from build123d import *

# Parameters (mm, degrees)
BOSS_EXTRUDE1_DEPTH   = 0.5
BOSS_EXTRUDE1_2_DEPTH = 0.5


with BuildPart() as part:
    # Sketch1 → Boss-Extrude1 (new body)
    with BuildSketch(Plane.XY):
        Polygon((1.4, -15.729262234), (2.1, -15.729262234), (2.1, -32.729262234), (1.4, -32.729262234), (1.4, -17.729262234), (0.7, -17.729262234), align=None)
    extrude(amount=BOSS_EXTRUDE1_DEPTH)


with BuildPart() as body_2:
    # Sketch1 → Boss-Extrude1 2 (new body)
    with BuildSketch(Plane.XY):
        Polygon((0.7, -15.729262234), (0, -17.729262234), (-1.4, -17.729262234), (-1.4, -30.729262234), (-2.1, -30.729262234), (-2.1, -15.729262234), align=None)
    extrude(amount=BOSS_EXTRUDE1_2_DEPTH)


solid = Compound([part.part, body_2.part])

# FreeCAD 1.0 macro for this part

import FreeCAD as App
import Part
import Sketcher
from FreeCAD import Vector
Q = App.Units.Quantity

doc = App.newDocument("Part")
body = doc.addObject("PartDesign::Body", "Body")

sketch1 = body.newObject("Sketcher::SketchObject", "Sketch")
sketch1.AttachmentSupport = (doc.getObject("XY_Plane"), [""])
sketch1.MapMode = "FlatFace"
sketch1.addGeometry(Part.LineSegment(Vector(2.1, -15.7, 0), Vector(1.4, -15.7, 0)), False)
sketch1.addGeometry(Part.LineSegment(Vector(1.4, -15.7, 0), Vector(0.7, -17.7, 0)), False)
sketch1.addGeometry(Part.LineSegment(Vector(0.7, -17.7, 0), Vector(1.4, -17.7, 0)), False)
sketch1.addGeometry(Part.LineSegment(Vector(1.4, -17.7, 0), Vector(1.4, -32.7, 0)), False)
sketch1.addGeometry(Part.LineSegment(Vector(1.4, -32.7, 0), Vector(2.1, -32.7, 0)), False)
sketch1.addGeometry(Part.LineSegment(Vector(2.1, -32.7, 0), Vector(2.1, -15.7, 0)), False)
sketch1.addConstraint(Sketcher.Constraint("Coincident", 0, 2, 1, 1))
sketch1.addConstraint(Sketcher.Constraint("Coincident", 1, 2, 2, 1))
sketch1.addConstraint(Sketcher.Constraint("Coincident", 2, 2, 3, 1))
sketch1.addConstraint(Sketcher.Constraint("Coincident", 3, 2, 4, 1))
sketch1.addConstraint(Sketcher.Constraint("Coincident", 4, 2, 5, 1))
sketch1.addConstraint(Sketcher.Constraint("Coincident", 5, 2, 0, 1))
sketch1.addConstraint(Sketcher.Constraint("Horizontal", 0))
sketch1.addConstraint(Sketcher.Constraint("Horizontal", 2))
sketch1.addConstraint(Sketcher.Constraint("Vertical", 3))
sketch1.addConstraint(Sketcher.Constraint("Horizontal", 4))
sketch1.addConstraint(Sketcher.Constraint("Vertical", 5))
sketch1.addConstraint(Sketcher.Constraint("Vertical", 0, 2, 2, 2))
sketch1.addConstraint(Sketcher.Constraint("Equal", 0, 2))
sketch1.addConstraint(Sketcher.Constraint("DistanceY", 3, 2, 3, 1, Q("15 mm")))
sketch1.addConstraint(Sketcher.Constraint("DistanceY", 5, 1, 5, 2, Q("17 mm")))
sketch1.addConstraint(Sketcher.Constraint("DistanceX", 0, 2, 0, 1, Q("0.7 mm")))
sketch1.addConstraint(Sketcher.Constraint("DistanceX", -1, 1, 0, 2, Q("1.4 mm")))
sketch1.addConstraint(Sketcher.Constraint("DistanceY", 0, 2, -1, 1, Q("15.729262 mm")))
pad1 = body.newObject("PartDesign::Pad", "Pad")
pad1.Profile = sketch1
pad1.Length = 0.5
body2 = doc.addObject("PartDesign::Body", "Body001")

sketch2 = body2.newObject("Sketcher::SketchObject", "Sketch001")
sketch2.AttachmentSupport = (doc.getObject("XY_Plane001"), [""])
sketch2.MapMode = "FlatFace"
sketch2.addGeometry(Part.LineSegment(Vector(0, -17.7, 0), Vector(0.7, -15.7, 0)), False)
sketch2.addGeometry(Part.LineSegment(Vector(0.7, -15.7, 0), Vector(-2.1, -15.7, 0)), False)
sketch2.addGeometry(Part.LineSegment(Vector(-2.1, -15.7, 0), Vector(-2.1, -30.7, 0)), False)
sketch2.addGeometry(Part.LineSegment(Vector(-2.1, -30.7, 0), Vector(-1.4, -30.7, 0)), False)
sketch2.addGeometry(Part.LineSegment(Vector(-1.4, -30.7, 0), Vector(-1.4, -17.7, 0)), False)
sketch2.addGeometry(Part.LineSegment(Vector(-1.4, -17.7, 0), Vector(0, -17.7, 0)), False)
sketch2.addConstraint(Sketcher.Constraint("Coincident", 0, 2, 1, 1))
sketch2.addConstraint(Sketcher.Constraint("Coincident", 1, 2, 2, 1))
sketch2.addConstraint(Sketcher.Constraint("Coincident", 2, 2, 3, 1))
sketch2.addConstraint(Sketcher.Constraint("Coincident", 3, 2, 4, 1))
sketch2.addConstraint(Sketcher.Constraint("Coincident", 4, 2, 5, 1))
sketch2.addConstraint(Sketcher.Constraint("Coincident", 5, 2, 0, 1))
sketch2.addConstraint(Sketcher.Constraint("Horizontal", 1))
sketch2.addConstraint(Sketcher.Constraint("Vertical", 2))
sketch2.addConstraint(Sketcher.Constraint("Horizontal", 3))
sketch2.addConstraint(Sketcher.Constraint("Vertical", 4))
sketch2.addConstraint(Sketcher.Constraint("Horizontal", 5))
sketch2.addConstraint(Sketcher.Constraint("PointOnObject", 5, 2, -2))
sketch2.addConstraint(Sketcher.Constraint("DistanceY", 2, 2, 2, 1, Q("15 mm")))
sketch2.addConstraint(Sketcher.Constraint("DistanceY", 4, 1, 4, 2, Q("13 mm")))
sketch2.addConstraint(Sketcher.Constraint("DistanceX", 1, 2, 1, 1, Q("2.8 mm")))
sketch2.addConstraint(Sketcher.Constraint("DistanceX", 3, 1, 3, 2, Q("0.7 mm")))
sketch2.addConstraint(Sketcher.Constraint("DistanceX", 5, 1, 5, 2, Q("1.4 mm")))
sketch2.addConstraint(Sketcher.Constraint("DistanceY", 0, 2, -1, 1, Q("15.729262 mm")))
pad2 = body2.newObject("PartDesign::Pad", "Pad001")
pad2.Profile = sketch2
pad2.Length = 0.5

doc.recompute()
